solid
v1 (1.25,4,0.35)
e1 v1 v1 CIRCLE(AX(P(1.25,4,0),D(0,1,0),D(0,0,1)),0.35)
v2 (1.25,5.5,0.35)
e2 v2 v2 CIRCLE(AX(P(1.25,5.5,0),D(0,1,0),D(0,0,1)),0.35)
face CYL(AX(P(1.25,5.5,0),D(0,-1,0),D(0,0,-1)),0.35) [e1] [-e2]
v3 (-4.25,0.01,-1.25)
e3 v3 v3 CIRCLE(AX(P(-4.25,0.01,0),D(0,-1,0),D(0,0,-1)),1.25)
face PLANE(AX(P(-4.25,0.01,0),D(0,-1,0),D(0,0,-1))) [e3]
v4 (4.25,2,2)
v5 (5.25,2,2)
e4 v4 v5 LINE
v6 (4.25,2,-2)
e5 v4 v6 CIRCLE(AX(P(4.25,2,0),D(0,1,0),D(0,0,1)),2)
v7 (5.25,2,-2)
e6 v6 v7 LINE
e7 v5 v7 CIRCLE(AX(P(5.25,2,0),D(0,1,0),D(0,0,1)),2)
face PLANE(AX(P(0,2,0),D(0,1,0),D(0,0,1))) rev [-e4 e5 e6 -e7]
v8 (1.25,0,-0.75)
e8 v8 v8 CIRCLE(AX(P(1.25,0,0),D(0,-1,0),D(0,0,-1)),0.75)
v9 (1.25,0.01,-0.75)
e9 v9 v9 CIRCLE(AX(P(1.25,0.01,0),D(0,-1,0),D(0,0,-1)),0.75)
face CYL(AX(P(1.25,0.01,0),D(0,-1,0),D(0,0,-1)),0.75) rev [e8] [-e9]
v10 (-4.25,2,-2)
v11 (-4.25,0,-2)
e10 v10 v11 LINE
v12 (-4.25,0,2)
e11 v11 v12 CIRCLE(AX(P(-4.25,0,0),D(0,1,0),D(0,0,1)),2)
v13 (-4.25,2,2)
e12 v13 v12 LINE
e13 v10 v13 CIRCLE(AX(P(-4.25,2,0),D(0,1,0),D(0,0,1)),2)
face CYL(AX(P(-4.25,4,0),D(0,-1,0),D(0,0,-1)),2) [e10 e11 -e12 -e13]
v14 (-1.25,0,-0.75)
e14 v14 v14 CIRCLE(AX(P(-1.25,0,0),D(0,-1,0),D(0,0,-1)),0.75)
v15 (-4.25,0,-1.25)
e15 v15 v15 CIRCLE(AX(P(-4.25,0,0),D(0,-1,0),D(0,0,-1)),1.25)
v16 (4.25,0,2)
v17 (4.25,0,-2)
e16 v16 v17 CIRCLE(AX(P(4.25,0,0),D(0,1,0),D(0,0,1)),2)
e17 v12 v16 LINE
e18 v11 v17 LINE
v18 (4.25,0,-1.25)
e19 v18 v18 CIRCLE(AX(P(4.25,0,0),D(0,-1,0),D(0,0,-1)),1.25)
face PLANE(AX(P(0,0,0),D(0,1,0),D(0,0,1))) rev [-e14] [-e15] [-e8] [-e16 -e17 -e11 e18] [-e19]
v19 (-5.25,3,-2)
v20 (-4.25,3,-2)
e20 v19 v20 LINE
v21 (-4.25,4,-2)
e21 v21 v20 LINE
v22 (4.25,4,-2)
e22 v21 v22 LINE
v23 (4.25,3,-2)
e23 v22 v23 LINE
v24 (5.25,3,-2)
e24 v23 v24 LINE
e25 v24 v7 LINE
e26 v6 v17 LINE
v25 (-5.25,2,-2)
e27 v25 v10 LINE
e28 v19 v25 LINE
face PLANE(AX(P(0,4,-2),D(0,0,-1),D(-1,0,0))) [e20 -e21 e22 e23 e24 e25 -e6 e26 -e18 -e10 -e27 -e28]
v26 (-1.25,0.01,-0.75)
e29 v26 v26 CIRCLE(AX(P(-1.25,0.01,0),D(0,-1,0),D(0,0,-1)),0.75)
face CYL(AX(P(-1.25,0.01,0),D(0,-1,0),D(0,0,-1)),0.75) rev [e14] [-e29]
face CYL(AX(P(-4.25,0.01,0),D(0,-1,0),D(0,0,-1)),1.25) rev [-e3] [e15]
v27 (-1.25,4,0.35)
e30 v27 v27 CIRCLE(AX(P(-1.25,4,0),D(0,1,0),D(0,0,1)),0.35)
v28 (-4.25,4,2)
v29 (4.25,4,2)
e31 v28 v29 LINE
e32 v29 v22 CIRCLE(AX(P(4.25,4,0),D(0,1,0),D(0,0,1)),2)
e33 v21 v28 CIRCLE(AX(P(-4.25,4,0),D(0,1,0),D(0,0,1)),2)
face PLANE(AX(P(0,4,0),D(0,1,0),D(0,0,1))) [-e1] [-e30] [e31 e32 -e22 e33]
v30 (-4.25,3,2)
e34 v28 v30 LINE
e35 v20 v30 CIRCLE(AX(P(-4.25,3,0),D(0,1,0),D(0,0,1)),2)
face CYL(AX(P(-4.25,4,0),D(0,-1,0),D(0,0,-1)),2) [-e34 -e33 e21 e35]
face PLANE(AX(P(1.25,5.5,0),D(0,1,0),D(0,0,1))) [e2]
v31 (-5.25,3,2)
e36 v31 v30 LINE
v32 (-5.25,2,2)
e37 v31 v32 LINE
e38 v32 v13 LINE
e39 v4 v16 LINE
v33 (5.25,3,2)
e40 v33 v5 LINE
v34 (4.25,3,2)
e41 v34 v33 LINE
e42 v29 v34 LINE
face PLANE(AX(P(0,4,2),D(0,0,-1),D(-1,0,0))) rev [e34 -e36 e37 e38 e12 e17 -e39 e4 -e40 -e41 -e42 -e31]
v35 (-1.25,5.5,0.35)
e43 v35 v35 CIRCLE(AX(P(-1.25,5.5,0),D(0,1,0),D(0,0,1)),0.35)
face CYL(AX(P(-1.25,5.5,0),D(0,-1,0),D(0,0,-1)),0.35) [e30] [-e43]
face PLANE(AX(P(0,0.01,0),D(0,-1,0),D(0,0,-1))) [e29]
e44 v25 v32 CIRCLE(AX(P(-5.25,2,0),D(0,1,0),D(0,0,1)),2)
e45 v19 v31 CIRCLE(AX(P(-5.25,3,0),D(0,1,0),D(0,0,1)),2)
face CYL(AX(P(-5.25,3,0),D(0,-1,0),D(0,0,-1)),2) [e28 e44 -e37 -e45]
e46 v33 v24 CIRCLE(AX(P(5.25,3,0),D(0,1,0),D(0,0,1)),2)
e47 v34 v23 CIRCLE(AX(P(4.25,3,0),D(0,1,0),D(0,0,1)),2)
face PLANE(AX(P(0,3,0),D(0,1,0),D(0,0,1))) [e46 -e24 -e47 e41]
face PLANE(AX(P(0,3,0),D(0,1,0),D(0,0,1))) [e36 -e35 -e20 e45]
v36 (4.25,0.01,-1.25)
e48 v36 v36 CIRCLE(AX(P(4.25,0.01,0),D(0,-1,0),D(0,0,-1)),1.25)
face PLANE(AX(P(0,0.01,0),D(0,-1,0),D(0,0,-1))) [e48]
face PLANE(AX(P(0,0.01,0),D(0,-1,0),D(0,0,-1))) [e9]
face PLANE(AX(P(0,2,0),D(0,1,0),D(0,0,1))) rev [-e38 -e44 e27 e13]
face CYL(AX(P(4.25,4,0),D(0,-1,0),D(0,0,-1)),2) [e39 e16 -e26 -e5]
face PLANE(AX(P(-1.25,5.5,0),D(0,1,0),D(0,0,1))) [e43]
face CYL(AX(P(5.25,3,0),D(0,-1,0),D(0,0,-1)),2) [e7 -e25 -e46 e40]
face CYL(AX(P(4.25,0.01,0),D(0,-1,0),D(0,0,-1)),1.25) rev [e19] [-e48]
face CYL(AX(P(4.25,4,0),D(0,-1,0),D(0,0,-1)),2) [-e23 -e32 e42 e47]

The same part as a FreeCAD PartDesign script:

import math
import FreeCAD as App
import Part
import Sketcher
from FreeCAD import Vector

doc = App.newDocument("Part")
body = doc.addObject("PartDesign::Body", "Body")

# Sketch on XZ plane
sketch1 = body.newObject("Sketcher::SketchObject", "Sketch")
sketch1.AttachmentSupport = (doc.getObject("XZ_Plane"), [""])
sketch1.MapMode = "FlatFace"
sketch1.addGeometry([
    Part.LineSegment(Vector(4.2, -2, 0), Vector(-4.2, -2, 0)),
    Part.ArcOfCircle(Part.Circle(Vector(-4.2, 0, 0), Vector(0, 0, 1), 2), math.radians(90), math.radians(270)),
    Part.LineSegment(Vector(-4.2, 2, 0), Vector(4.2, 2, 0)),
    Part.ArcOfCircle(Part.Circle(Vector(4.2, 0, 0), Vector(0, 0, 1), 2), math.radians(-90), math.radians(90)),
], False)
sketch1.addConstraint([
    Sketcher.Constraint("Tangent", 0, 2, 1, 2),
    Sketcher.Constraint("Tangent", 1, 1, 2, 1),
    Sketcher.Constraint("Tangent", 2, 2, 3, 2),
    Sketcher.Constraint("Tangent", 3, 1, 0, 1),
    Sketcher.Constraint("Horizontal", 0),
    Sketcher.Constraint("Horizontal", 2),
    Sketcher.Constraint("Symmetric", 1, 3, 3, 3, -1, 1),
    Sketcher.Constraint("Radius", 1, 2.0),
    Sketcher.Constraint("DistanceX", 0, 2, 0, 1, 8.5),
])
pad1 = body.newObject("PartDesign::Pad", "Pad")
pad1.Profile = sketch1
pad1.Length = 4
pad1.Reversed = True

# Sketch on XZ plane
sketch2 = body.newObject("Sketcher::SketchObject", "Sketch001")
sketch2.AttachmentSupport = (doc.getObject("XZ_Plane"), [""])
sketch2.MapMode = "FlatFace"
sketch2.AttachmentOffset = App.Placement(Vector(0, 0, -2), App.Rotation())
sketch2.addGeometry([
    Part.LineSegment(Vector(5.2, -2, 0), Vector(4.2, -2, 0)),  # 0
    Part.ArcOfCircle(Part.Circle(Vector(4.2, 0, 0), Vector(0, 0, 1), 2), math.radians(-90), math.radians(90)),  # 1
    Part.LineSegment(Vector(4.2, 2, 0), Vector(5.2, 2, 0)),  # 2
    Part.ArcOfCircle(Part.Circle(Vector(5.2, 0, 0), Vector(0, 0, 1), 2), math.radians(-90), math.radians(90)),  # 3
    Part.LineSegment(Vector(-4.2, -2, 0), Vector(-5.2, -2, 0)),  # 4
    Part.ArcOfCircle(Part.Circle(Vector(-5.2, 0, 0), Vector(0, 0, 1), 2), math.radians(90), math.radians(270)),  # 5
    Part.LineSegment(Vector(-5.2, 2, 0), Vector(-4.2, 2, 0)),  # 6
    Part.ArcOfCircle(Part.Circle(Vector(-4.2, 0, 0), Vector(0, 0, 1), 2), math.radians(90), math.radians(270)),  # 7
], False)
sketch2.addConstraint([
    Sketcher.Constraint("Tangent", 0, 2, 1, 1),
    Sketcher.Constraint("Tangent", 1, 2, 2, 1),
    Sketcher.Constraint("Tangent", 2, 2, 3, 2),
    Sketcher.Constraint("Tangent", 3, 1, 0, 1),
    Sketcher.Constraint("Tangent", 4, 2, 5, 2),
    Sketcher.Constraint("Tangent", 5, 1, 6, 1),
    Sketcher.Constraint("Tangent", 6, 2, 7, 1),
    Sketcher.Constraint("Tangent", 7, 2, 4, 1),
    Sketcher.Constraint("Horizontal", 0),
    Sketcher.Constraint("Horizontal", 2),
    Sketcher.Constraint("Horizontal", 4),
    Sketcher.Constraint("Horizontal", 6),
    Sketcher.Constraint("Equal", 3, 5),
    Sketcher.Constraint("Symmetric", 3, 3, 5, 3, -1, 1),
    Sketcher.Constraint("Symmetric", 1, 3, 7, 3, -2),
    Sketcher.Constraint("Radius", 1, 2.0),
    Sketcher.Constraint("DistanceX", 0, 2, 0, 1, 1.0),
    Sketcher.Constraint("DistanceX", 5, 3, 1, 3, 9.5),
])
pad2 = body.newObject("PartDesign::Pad", "Pad001")
pad2.Profile = sketch2
pad2.Length = 1
pad2.Reversed = True

# Sketch on XZ plane
sketch3 = body.newObject("Sketcher::SketchObject", "Sketch002")
sketch3.AttachmentSupport = (doc.getObject("XZ_Plane"), [""])
sketch3.MapMode = "FlatFace"
sketch3.AttachmentOffset = App.Placement(Vector(0, 0, -4), App.Rotation())
sketch3.addGeometry([
    Part.Circle(Vector(-1.25, 0, 0), Vector(0, 0, 1), 0.35),
    Part.Circle(Vector(1.25, 0, 0), Vector(0, 0, 1), 0.35),
], False)
sketch3.addConstraint([
    Sketcher.Constraint("Equal", 0, 1),
    Sketcher.Constraint("Symmetric", 0, 3, 1, 3, -1, 1),
    Sketcher.Constraint("PointOnObject", 0, 3, -1),
    Sketcher.Constraint("Diameter", 0, 0.7),
    Sketcher.Constraint("DistanceX", 0, 3, 1, 3, 2.5),
])
pad3 = body.newObject("PartDesign::Pad", "Pad002")
pad3.Profile = sketch3
pad3.Length = 1.5
pad3.Reversed = True

# Sketch on XZ plane
sketch4 = body.newObject("Sketcher::SketchObject", "Sketch003")
sketch4.AttachmentSupport = (doc.getObject("XZ_Plane"), [""])
sketch4.MapMode = "FlatFace"
sketch4.addGeometry([
    Part.Circle(Vector(-1.2, 0, 0), Vector(0, 0, 1), 0.8),
    Part.Circle(Vector(1.2, 0, 0), Vector(0, 0, 1), 0.8),
    Part.Circle(Vector(4.2, 0, 0), Vector(0, 0, 1), 1.2),
    Part.Circle(Vector(-4.2, 0, 0), Vector(0, 0, 1), 1.2),
], False)
sketch4.addConstraint([
    Sketcher.Constraint("Equal", 0, 1),
    Sketcher.Constraint("Equal", 2, 3),
    Sketcher.Constraint("Symmetric", 0, 3, 1, 3, -1, 1),
    Sketcher.Constraint("Symmetric", 2, 3, 3, 3, -1, 1),
    Sketcher.Constraint("PointOnObject", 0, 3, -1),
    Sketcher.Constraint("PointOnObject", 2, 3, -1),
    Sketcher.Constraint("Diameter", 0, 1.5),
    Sketcher.Constraint("Diameter", 2, 2.5),
    Sketcher.Constraint("DistanceX", 1, 3, 2, 3, 3.0),
    Sketcher.Constraint("DistanceX", 0, 3, 1, 3, 2.5),
])
pocket1 = body.newObject("PartDesign::Pocket", "Pocket")
pocket1.Profile = sketch4
pocket1.Length = 0.01

doc.recompute()
